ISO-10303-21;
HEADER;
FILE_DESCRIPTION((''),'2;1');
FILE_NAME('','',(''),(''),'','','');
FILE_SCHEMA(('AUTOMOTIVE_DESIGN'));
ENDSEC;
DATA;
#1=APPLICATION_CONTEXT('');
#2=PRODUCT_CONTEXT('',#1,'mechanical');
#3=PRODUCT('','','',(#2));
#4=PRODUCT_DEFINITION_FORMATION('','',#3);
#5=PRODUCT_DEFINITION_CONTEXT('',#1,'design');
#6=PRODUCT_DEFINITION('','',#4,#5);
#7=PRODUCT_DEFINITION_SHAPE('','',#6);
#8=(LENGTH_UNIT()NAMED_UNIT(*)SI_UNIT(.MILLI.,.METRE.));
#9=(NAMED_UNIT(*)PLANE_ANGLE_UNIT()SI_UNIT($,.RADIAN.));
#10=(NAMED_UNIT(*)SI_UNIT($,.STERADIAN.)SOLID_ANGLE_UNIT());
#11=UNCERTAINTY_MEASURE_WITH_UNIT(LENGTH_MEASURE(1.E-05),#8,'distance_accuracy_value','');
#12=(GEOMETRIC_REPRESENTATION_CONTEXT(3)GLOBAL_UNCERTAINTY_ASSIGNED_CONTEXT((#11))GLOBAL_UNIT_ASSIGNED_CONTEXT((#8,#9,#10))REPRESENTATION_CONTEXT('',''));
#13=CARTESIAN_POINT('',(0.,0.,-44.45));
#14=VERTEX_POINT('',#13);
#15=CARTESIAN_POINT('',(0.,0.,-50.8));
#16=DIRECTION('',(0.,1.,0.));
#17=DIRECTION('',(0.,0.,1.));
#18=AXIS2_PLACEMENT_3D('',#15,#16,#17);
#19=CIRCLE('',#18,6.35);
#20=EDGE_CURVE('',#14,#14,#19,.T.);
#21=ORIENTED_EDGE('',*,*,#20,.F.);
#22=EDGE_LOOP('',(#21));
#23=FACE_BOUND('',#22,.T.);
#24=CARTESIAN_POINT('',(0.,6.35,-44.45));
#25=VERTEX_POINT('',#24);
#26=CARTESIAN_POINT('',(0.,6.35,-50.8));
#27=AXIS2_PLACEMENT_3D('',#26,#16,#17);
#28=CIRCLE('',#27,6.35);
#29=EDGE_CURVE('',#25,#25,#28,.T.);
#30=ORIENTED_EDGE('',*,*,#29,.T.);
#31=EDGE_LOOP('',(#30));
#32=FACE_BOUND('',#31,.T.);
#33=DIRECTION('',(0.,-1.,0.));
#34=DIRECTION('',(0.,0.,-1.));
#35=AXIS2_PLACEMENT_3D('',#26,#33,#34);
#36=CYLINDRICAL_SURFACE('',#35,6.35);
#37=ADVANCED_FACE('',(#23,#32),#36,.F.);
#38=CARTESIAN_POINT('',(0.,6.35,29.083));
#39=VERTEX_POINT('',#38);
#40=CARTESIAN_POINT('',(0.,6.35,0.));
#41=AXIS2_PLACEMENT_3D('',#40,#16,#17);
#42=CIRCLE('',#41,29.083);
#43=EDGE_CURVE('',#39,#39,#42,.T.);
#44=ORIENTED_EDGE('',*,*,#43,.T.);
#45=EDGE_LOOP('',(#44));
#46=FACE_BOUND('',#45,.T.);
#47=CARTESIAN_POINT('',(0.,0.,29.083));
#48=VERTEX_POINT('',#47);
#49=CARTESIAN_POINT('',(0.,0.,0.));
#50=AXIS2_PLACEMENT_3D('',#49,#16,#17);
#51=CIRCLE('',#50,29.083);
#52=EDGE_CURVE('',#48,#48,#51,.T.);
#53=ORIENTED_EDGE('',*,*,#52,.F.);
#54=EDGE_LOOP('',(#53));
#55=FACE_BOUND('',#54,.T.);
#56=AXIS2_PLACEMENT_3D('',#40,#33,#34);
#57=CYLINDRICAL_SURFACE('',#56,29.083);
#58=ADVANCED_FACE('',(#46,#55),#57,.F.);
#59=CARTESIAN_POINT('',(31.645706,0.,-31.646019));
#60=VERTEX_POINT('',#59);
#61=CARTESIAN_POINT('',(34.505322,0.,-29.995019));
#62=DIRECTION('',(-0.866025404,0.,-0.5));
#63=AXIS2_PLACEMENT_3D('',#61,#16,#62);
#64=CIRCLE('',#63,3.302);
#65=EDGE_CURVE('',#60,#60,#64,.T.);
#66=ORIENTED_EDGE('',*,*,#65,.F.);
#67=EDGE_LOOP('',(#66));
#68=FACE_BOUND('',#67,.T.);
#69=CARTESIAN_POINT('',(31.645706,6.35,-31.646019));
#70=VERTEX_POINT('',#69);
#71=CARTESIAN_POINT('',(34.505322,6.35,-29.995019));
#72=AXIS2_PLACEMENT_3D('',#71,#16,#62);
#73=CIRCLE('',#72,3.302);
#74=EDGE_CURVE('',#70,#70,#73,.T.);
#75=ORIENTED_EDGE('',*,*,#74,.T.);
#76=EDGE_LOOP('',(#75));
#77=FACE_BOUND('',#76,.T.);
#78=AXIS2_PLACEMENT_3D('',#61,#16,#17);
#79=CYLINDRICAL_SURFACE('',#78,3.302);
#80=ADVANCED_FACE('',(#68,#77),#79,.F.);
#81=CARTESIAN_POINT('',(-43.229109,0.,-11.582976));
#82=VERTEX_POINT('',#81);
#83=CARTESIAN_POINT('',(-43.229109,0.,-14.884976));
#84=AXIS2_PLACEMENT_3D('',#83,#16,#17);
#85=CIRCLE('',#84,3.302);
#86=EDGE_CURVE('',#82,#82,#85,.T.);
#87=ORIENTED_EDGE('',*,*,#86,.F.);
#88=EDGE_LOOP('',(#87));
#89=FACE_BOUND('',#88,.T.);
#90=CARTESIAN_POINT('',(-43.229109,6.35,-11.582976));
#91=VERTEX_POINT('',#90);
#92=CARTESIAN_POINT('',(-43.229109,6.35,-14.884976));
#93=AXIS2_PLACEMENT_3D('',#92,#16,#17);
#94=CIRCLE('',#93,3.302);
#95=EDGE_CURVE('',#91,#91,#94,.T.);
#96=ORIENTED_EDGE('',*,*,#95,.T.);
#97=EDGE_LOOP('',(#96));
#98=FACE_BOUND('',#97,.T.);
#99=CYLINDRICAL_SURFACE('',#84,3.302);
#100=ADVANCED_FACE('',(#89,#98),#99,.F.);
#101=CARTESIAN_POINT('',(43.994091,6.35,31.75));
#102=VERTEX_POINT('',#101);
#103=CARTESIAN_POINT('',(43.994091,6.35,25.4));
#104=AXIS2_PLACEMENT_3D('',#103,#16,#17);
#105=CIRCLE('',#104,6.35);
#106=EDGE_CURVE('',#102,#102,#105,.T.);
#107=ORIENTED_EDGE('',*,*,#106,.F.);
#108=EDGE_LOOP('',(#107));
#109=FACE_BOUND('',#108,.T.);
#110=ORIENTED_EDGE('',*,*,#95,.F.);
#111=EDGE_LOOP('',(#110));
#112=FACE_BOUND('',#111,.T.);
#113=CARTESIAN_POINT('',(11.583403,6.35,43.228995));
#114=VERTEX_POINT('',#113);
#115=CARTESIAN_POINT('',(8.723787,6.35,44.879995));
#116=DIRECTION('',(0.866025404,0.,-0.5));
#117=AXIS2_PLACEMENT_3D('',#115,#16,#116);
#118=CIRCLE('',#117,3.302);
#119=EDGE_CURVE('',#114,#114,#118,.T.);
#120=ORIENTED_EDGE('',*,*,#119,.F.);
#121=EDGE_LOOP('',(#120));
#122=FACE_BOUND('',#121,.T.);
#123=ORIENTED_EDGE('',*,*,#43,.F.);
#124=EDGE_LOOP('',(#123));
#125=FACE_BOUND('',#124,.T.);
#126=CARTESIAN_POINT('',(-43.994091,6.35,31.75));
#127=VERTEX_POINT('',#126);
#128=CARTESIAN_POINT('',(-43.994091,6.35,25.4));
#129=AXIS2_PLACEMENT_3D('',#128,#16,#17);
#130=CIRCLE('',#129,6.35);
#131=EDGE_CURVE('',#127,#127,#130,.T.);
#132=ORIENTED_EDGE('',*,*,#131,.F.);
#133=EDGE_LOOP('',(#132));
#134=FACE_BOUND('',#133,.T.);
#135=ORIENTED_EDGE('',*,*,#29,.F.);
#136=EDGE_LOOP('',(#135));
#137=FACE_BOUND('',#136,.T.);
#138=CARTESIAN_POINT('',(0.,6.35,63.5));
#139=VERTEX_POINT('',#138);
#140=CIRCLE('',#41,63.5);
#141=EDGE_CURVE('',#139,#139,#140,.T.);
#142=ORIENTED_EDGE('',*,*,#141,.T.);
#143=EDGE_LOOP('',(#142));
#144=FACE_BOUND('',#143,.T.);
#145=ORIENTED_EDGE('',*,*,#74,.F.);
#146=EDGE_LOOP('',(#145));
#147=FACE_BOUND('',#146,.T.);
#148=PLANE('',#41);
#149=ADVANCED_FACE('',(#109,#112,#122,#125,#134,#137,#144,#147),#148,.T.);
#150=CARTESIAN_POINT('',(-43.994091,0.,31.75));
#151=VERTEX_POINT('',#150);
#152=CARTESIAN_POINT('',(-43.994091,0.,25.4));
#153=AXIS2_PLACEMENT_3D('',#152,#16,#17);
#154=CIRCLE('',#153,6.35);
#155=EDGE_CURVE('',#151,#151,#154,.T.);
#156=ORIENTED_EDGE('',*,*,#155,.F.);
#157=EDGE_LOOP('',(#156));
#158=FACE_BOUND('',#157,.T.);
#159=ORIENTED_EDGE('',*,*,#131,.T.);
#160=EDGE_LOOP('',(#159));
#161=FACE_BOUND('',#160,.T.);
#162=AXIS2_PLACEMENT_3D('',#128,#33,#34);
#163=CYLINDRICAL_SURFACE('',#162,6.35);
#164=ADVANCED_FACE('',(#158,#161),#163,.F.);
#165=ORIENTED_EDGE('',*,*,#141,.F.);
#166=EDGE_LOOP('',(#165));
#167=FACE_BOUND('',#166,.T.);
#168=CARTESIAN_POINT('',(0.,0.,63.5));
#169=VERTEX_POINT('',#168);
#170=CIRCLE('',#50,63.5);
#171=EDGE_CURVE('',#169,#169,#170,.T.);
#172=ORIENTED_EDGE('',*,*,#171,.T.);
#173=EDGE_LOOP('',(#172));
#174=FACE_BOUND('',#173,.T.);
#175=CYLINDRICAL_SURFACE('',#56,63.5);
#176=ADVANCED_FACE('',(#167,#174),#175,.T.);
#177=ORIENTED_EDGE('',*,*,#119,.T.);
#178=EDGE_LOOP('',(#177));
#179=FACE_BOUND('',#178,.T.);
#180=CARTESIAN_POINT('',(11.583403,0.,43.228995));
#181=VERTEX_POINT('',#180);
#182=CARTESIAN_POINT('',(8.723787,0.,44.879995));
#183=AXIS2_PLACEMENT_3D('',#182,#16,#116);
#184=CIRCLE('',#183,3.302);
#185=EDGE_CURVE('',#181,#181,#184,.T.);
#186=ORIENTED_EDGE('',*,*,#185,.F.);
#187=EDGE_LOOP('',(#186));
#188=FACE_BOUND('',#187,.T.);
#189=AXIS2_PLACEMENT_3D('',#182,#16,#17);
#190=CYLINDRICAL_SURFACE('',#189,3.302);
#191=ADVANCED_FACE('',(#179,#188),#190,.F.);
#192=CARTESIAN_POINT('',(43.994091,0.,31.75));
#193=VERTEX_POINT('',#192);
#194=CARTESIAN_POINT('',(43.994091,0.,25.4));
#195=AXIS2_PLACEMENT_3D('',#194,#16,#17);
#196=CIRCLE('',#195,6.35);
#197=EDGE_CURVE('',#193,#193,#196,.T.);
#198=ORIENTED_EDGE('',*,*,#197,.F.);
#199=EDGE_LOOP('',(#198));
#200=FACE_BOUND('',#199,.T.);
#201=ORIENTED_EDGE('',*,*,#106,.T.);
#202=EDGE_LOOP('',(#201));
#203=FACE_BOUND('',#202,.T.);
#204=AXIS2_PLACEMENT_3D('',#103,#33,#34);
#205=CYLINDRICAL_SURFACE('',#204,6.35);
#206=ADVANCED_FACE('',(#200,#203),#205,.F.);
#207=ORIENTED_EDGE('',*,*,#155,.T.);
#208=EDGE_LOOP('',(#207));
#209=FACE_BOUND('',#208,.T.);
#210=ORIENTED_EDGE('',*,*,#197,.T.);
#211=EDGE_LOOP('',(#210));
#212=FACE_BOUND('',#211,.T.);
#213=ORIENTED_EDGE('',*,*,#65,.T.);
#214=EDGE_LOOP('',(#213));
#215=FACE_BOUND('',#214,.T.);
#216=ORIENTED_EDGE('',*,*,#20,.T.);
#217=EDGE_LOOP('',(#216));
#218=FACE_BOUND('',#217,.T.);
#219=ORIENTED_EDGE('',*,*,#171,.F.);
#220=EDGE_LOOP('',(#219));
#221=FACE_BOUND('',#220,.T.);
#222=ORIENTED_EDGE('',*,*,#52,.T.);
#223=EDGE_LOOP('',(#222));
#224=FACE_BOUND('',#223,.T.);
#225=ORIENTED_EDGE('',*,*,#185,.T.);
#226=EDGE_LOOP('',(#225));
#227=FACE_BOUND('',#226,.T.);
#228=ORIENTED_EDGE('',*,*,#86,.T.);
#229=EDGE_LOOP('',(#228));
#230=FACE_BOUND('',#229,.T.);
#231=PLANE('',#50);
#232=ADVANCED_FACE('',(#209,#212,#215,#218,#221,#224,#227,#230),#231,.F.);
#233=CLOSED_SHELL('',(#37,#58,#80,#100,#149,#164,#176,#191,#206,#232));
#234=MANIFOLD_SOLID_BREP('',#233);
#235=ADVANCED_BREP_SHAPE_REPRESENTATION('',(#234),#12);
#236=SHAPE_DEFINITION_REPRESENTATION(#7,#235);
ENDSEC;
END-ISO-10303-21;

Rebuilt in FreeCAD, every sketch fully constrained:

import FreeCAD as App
import Part
import Sketcher

V = App.Vector
Q = App.Units.Quantity

doc = App.newDocument("Part")
body = doc.addObject("PartDesign::Body", "Body")

# Sketch on XZ plane
sketch1 = body.newObject("Sketcher::SketchObject", "Sketch")
sketch1.AttachmentSupport = (doc.getObject("XZ_Plane"), [""])
sketch1.MapMode = "FlatFace"
sketch1.addGeometry([
    Part.Circle(V(0, 0, 0), V(0, 0, 1), 63.5),  # 0
    Part.Circle(V(-43.994091, 25.4, 0), V(0, 0, 1), 6.35),  # 1
    Part.Circle(V(43.994091, 25.4, 0), V(0, 0, 1), 6.35),  # 2
    Part.Circle(V(0, 0, 0), V(0, 0, 1), 29.083),  # 3
    Part.Circle(V(0, -50.8, 0), V(0, 0, 1), 6.35),  # 4
], False)
sketch1.addConstraint([
    Sketcher.Constraint("Coincident", 0, 3, -1, 1),
    Sketcher.Constraint("Coincident", 3, 3, -1, 1),
    Sketcher.Constraint("Equal", 1, 2),
    Sketcher.Constraint("Equal", 2, 4),
    Sketcher.Constraint("Symmetric", 1, 3, 2, 3, -2),
    Sketcher.Constraint("PointOnObject", 4, 3, -2),
    Sketcher.Constraint("Diameter", 0, Q("5 in")),
    Sketcher.Constraint("Diameter", 1, Q("0.5 in")),
    Sketcher.Constraint("Diameter", 3, Q("2.29 in")),
    Sketcher.Constraint("DistanceY", -1, 1, 1, 3, Q("1 in")),
    Sketcher.Constraint("DistanceY", 4, 3, -1, 1, Q("2 in")),
    Sketcher.Constraint("DistanceX", 1, 3, -1, 1, 43.994091),
])
pad1 = body.newObject("PartDesign::Pad", "Pad")
pad1.Profile = sketch1
pad1.Length = Q("0.25 in")
pad1.Reversed = True

# Sketch on XZ plane
sketch2 = body.newObject("Sketcher::SketchObject", "Sketch001")
sketch2.AttachmentSupport = (doc.getObject("XZ_Plane"), [""])
sketch2.MapMode = "FlatFace"
sketch2.AttachmentOffset = App.Placement(V(0, 0, -0.25 * 25.4), App.Rotation())
sketch2.addGeometry(Part.Circle(V(-43.229109, -14.884976, 0), V(0, 0, 1), 3.302), False)
sketch2.addConstraint([
    Sketcher.Constraint("Diameter", 0, Q("0.26 in")),
    Sketcher.Constraint("DistanceX", 0, 3, -1, 1, 43.229109),
    Sketcher.Constraint("DistanceY", 0, 3, -1, 1, 14.884976),
])
pocket1 = body.newObject("PartDesign::Pocket", "Pocket")
pocket1.Profile = sketch2
pocket1.Type = "ThroughAll"
pocket1.Reversed = True
doc.recompute()

polarpattern = body.newObject("PartDesign::PolarPattern", "PolarPattern")
polarpattern.Originals = [pocket1]
polarpattern.Axis = (doc.getObject("Y_Axis"), [""])
polarpattern.Angle = 360
polarpattern.Occurrences = 3
body.Tip = polarpattern

doc.recompute()
